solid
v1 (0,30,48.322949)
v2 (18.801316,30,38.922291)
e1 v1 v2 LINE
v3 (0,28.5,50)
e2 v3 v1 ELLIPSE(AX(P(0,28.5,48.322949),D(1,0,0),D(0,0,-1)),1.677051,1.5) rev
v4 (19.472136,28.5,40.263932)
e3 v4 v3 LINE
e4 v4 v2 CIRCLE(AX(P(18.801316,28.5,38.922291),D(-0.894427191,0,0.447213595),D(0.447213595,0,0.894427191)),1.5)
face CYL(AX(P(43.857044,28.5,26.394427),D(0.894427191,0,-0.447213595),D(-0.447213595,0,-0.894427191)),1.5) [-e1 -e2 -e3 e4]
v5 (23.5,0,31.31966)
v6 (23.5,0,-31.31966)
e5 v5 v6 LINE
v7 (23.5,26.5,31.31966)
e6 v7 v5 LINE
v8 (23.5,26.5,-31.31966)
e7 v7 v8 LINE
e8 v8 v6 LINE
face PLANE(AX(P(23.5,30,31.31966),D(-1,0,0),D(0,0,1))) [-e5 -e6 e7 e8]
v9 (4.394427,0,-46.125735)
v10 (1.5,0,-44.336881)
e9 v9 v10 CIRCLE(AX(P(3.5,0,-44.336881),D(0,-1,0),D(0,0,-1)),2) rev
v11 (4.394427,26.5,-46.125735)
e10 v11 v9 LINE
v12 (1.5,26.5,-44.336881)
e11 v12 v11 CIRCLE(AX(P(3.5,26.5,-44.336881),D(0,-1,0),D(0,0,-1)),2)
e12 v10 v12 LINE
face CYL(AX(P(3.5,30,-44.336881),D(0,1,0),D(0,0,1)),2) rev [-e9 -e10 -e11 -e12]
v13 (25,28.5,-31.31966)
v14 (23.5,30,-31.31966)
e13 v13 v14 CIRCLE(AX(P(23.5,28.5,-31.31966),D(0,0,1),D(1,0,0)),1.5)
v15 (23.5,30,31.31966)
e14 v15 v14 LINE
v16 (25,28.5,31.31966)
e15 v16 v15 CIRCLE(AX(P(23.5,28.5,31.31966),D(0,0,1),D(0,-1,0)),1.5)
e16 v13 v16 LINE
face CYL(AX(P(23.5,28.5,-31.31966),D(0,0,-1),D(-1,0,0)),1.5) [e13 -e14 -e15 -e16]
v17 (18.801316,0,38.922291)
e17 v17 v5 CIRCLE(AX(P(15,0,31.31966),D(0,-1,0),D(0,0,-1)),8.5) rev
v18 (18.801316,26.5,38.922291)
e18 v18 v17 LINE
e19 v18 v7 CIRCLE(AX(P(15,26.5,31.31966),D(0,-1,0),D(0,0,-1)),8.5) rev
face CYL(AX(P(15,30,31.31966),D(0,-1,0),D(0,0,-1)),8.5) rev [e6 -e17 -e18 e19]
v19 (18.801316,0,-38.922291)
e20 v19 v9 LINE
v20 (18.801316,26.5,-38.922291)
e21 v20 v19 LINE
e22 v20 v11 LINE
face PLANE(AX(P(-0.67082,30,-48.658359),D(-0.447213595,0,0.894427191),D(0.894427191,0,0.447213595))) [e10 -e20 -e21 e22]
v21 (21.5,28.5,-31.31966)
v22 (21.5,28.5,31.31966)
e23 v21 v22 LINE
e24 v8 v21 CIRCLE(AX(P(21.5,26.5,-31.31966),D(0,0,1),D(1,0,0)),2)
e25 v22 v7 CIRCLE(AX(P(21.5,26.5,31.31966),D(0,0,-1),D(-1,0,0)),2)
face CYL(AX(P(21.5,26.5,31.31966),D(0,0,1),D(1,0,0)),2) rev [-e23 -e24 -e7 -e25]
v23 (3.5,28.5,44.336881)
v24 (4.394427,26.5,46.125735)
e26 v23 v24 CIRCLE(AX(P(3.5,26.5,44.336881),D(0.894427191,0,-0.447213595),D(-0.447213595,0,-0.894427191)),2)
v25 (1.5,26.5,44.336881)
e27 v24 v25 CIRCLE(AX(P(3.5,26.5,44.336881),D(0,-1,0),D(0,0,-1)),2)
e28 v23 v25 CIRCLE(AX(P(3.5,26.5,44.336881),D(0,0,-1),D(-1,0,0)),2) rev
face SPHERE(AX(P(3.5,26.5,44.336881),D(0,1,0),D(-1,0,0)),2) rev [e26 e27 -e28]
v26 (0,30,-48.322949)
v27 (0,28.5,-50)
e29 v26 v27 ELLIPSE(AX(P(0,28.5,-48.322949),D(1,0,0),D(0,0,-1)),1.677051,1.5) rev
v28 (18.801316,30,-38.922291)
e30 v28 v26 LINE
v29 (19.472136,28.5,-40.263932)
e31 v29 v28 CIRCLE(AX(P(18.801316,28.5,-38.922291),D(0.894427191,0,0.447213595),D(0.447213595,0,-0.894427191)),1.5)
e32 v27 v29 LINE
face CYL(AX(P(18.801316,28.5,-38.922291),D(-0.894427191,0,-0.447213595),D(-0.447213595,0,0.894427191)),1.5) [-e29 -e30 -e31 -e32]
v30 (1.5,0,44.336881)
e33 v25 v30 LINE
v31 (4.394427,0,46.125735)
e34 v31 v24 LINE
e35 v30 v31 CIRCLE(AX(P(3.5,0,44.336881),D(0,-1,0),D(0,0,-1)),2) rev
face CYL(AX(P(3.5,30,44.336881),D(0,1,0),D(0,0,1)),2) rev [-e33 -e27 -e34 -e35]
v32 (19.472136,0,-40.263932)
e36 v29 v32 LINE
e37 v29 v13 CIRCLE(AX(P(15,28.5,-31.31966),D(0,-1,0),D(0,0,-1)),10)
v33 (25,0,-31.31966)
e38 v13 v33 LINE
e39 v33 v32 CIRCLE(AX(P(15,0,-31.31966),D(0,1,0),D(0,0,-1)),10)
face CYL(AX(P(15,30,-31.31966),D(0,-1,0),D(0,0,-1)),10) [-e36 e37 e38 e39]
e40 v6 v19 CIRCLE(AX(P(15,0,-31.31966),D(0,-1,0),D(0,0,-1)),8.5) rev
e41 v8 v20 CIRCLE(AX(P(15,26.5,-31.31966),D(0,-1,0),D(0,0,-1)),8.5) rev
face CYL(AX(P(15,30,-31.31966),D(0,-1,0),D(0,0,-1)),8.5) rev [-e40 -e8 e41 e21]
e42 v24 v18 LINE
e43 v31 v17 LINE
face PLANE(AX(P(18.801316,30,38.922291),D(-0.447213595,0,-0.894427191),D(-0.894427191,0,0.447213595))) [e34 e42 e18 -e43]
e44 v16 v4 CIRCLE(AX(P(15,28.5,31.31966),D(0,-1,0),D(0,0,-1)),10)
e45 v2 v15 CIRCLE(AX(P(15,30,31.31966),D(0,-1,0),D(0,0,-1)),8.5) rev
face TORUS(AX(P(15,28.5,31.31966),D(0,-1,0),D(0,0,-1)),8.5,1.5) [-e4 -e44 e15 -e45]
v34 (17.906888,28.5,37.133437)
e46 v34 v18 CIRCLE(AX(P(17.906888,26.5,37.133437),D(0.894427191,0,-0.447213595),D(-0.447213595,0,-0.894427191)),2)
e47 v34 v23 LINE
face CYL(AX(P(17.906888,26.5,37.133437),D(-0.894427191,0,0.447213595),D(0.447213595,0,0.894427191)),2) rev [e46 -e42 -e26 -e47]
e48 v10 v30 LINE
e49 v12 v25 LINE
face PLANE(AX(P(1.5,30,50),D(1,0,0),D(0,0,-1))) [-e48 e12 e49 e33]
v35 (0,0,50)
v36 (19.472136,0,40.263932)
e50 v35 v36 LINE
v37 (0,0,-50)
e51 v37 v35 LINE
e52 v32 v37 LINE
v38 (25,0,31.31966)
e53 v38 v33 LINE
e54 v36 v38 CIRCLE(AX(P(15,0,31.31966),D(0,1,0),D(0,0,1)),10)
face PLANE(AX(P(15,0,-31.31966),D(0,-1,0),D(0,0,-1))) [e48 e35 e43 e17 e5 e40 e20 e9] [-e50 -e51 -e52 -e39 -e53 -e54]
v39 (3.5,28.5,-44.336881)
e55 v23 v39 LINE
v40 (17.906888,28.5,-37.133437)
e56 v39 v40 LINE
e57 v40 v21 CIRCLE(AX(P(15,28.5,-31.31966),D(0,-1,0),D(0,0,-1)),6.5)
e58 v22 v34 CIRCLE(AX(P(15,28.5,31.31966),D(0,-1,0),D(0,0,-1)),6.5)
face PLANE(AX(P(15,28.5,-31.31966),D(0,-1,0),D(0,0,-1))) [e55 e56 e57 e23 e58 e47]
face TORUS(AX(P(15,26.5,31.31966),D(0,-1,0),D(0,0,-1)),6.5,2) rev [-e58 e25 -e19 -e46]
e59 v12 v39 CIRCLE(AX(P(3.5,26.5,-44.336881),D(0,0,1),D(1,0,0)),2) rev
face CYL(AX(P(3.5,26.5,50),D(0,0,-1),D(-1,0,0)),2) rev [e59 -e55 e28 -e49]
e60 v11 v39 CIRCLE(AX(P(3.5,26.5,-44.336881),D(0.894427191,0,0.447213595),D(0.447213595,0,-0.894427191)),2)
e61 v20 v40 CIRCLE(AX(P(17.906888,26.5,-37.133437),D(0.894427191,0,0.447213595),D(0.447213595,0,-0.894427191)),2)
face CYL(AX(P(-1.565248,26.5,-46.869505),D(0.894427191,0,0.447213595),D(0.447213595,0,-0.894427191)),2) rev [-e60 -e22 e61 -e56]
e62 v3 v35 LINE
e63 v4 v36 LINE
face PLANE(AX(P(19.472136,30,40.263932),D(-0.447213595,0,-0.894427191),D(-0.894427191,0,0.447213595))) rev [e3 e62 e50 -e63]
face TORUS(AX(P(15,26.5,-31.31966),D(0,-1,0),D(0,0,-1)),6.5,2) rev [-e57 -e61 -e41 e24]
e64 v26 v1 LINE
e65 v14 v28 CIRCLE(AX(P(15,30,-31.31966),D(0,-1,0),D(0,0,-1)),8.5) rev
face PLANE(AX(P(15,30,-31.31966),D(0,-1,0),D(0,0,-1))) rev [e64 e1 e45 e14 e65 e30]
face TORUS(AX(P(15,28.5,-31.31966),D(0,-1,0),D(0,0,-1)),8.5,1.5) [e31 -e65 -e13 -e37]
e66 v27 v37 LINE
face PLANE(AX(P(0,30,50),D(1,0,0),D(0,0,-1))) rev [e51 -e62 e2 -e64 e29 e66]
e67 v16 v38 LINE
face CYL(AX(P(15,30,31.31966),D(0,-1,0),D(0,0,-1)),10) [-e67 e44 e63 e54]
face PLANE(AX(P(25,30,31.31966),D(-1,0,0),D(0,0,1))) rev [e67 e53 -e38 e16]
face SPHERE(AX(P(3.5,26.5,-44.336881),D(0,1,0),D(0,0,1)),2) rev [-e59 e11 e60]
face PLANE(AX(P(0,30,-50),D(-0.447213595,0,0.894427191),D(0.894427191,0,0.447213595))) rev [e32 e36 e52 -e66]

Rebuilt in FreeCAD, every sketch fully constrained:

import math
import FreeCAD as App
import Part
import Sketcher
Q = App.Units.Quantity


def edges_at(feature, points):
    """Names of the edges that pass closest to the given points."""
    edges = feature.Shape.Edges
    near = lambda p: min(range(len(edges)), key=lambda i: edges[i].distToShape(Part.Vertex(*p))[0])
    return sorted({f"Edge{near(p) + 1}" for p in points})


def faces_at(feature, points):
    """Names of the faces that lie closest to the given points."""
    faces = feature.Shape.Faces
    near = lambda p: min(range(len(faces)), key=lambda i: faces[i].distToShape(Part.Vertex(*p))[0])
    return sorted({f"Face{near(p) + 1}" for p in points})

doc = App.newDocument("Part")
params = doc.addObject("Spreadsheet::Sheet", "Params")
for row, (alias, value) in enumerate([
    ("sketch1_radius", "10 mm"),
    ("sketch1_height", "100 mm"),
    ("pad1_length", "30 mm"),
    ("thickness_wall", "1.5 mm"),
    ("fillet_radius", "2 mm"),
    ("fillet2_radius", "1.5 mm"),
], start=1):
    params.set(f"A{row}", alias)
    params.set(f"B{row}", "=" + value)
    params.setAlias(f"B{row}", alias)

body = doc.addObject("PartDesign::Body", "Body")

# Sketch on XZ plane
sketch1 = doc.addObject("Sketcher::SketchObject", "Sketch")
body.addObject(sketch1)
sketch1.AttachmentSupport = (doc.XZ_Plane, [""])
sketch1.MapMode = "FlatFace"
sketch1.addGeometry(Part.LineSegment(App.Vector(0, -50, 0), App.Vector(0, 50, 0)), False)
sketch1.addGeometry(Part.LineSegment(App.Vector(0, 50, 0), App.Vector(19, 40, 0)), False)
sketch1.addGeometry(Part.ArcOfCircle(Part.Circle(App.Vector(15, 31, 0), App.Vector(0, 0, 1), 10), math.radians(0), math.radians(63)), False)
sketch1.addGeometry(Part.LineSegment(App.Vector(25, 31, 0), App.Vector(25, -31, 0)), False)
sketch1.addGeometry(Part.ArcOfCircle(Part.Circle(App.Vector(15, -31, 0), App.Vector(0, 0, 1), 10), math.radians(-63), math.radians(0)), False)
sketch1.addGeometry(Part.LineSegment(App.Vector(19, -40, 0), App.Vector(0, -50, 0)), False)
sketch1.addConstraint(Sketcher.Constraint("Coincident", 0, 2, 1, 1))
sketch1.addConstraint(Sketcher.Constraint("Tangent", 1, 2, 2, 2))
sketch1.addConstraint(Sketcher.Constraint("Tangent", 2, 1, 3, 1))
sketch1.addConstraint(Sketcher.Constraint("Tangent", 3, 2, 4, 2))
sketch1.addConstraint(Sketcher.Constraint("Tangent", 4, 1, 5, 1))
sketch1.addConstraint(Sketcher.Constraint("Coincident", 5, 2, 0, 1))
sketch1.addConstraint(Sketcher.Constraint("Vertical", 0))
sketch1.addConstraint(Sketcher.Constraint("Vertical", 3))
sketch1.addConstraint(Sketcher.Constraint("Equal", 2, 4))
sketch1.addConstraint(Sketcher.Constraint("Symmetric", 0, 2, 5, 2, -1, 1))
sketch1.addConstraint(Sketcher.Constraint("Vertical", 1, 2, 4, 1))
sketch1.addConstraint(Sketcher.Constraint("Radius", 2, Q("10 mm")))
sketch1.addConstraint(Sketcher.Constraint("DistanceY", 0, 1, 0, 2, Q("100 mm")))
sketch1.addConstraint(Sketcher.Constraint("DistanceX", -1, 1, 2, 3, Q("15 mm")))
sketch1.addConstraint(Sketcher.Constraint("DistanceY", 3, 2, 3, 1, Q("62.63932 mm")))
sketch1.setExpression("Constraints[11]", "Params.sketch1_radius")
sketch1.setExpression("Constraints[12]", "Params.sketch1_height")
pad1 = doc.addObject("PartDesign::Pad", "Pad")
body.addObject(pad1)
pad1.Profile = sketch1
pad1.setExpression("Length", "Params.pad1_length")
pad1.Reversed = True
doc.recompute()

thickness = doc.addObject("PartDesign::Thickness", "Thickness")
body.addObject(thickness)
thickness.Base = (pad1, faces_at(pad1, [(12.5, 0, 0)]))
thickness.setExpression("Value", "Params.thickness_wall")
thickness.Reversed = True
thickness.Join = "Intersection"
doc.recompute()

fillet = doc.addObject("PartDesign::Fillet", "Fillet")
body.addObject(fillet)
fillet.Base = (thickness, edges_at(thickness, [
    (1.5, 14.25, -47.573),
    (1.5, 14.25, 47.573),
    (10.151, 28.5, -43.248),
    (1.5, 28.5, 0),
    (10.151, 28.5, 43.248),
    (22.231, 28.5, 35.788),
    (23.5, 28.5, 0),
    (22.231, 28.5, -35.788),
]))
fillet.setExpression("Radius", "Params.fillet_radius")
doc.recompute()

fillet2 = doc.addObject("PartDesign::Fillet", "Fillet001")
body.addObject(fillet2)
fillet2.Base = (fillet, edges_at(fillet, [
    (9.736, 30, 45.132),
    (23.507, 30, 36.577),
    (25, 30, 0),
    (23.507, 30, -36.577),
    (9.736, 30, -45.132),
]))
fillet2.setExpression("Radius", "Params.fillet2_radius")

doc.recompute()
